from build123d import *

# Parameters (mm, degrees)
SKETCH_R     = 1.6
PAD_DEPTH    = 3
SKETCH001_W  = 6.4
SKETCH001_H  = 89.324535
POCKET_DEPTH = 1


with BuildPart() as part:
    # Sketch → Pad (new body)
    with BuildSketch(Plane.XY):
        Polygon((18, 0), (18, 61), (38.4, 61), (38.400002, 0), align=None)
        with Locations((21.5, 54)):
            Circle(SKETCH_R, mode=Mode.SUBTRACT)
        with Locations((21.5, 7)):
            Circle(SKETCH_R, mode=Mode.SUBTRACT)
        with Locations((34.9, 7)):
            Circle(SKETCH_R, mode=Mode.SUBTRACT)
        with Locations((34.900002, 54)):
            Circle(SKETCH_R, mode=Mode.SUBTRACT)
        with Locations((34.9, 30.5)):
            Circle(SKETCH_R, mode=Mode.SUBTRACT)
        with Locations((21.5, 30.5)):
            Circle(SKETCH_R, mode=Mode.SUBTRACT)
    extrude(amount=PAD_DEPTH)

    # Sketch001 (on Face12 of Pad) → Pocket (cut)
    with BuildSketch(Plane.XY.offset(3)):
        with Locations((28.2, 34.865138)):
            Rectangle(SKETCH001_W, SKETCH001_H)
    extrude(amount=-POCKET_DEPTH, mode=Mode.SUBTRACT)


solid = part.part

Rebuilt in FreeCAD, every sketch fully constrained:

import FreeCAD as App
import Part
import Sketcher
Q = App.Units.Quantity


def add_polygon(sketch, points):
    """Adds a closed chain of lines whose ends are joined by coincident constraints."""
    first, n = sketch.GeometryCount, len(points)
    for a, b in zip(points, points[1:] + points[:1]):
        sketch.addGeometry(Part.LineSegment(App.Vector(*a, 0), App.Vector(*b, 0)), False)
    for i in range(n):
        sketch.addConstraint(Sketcher.Constraint("Coincident", first + i, 2, first + (i + 1) % n, 1))

doc = App.newDocument("Part")
body = doc.addObject("PartDesign::Body", "Body")

sketch1 = doc.addObject("Sketcher::SketchObject", "Sketch")
body.addObject(sketch1)
sketch1.AttachmentSupport = (doc.XY_Plane, [""])
sketch1.MapMode = "FlatFace"
add_polygon(sketch1, [(18, 61), (18, 0), (38.4, 0), (38.4, 61)])
sketch1.addGeometry(Part.Circle(App.Vector(34.9, 7, 0), App.Vector(0, 0, 1), 1.6), False)
sketch1.addGeometry(Part.Circle(App.Vector(21.5, 7, 0), App.Vector(0, 0, 1), 1.6), False)
sketch1.addGeometry(Part.Circle(App.Vector(34.9, 30.5, 0), App.Vector(0, 0, 1), 1.6), False)
sketch1.addGeometry(Part.Circle(App.Vector(34.9, 54, 0), App.Vector(0, 0, 1), 1.6), False)
sketch1.addGeometry(Part.Circle(App.Vector(21.5, 30.5, 0), App.Vector(0, 0, 1), 1.6), False)
sketch1.addGeometry(Part.Circle(App.Vector(21.5, 54, 0), App.Vector(0, 0, 1), 1.6), False)
sketch1.addConstraint(Sketcher.Constraint("Vertical", 0))
sketch1.addConstraint(Sketcher.Constraint("Horizontal", 1))
sketch1.addConstraint(Sketcher.Constraint("Horizontal", 3))
sketch1.addConstraint(Sketcher.Constraint("Equal", 4, 5))
sketch1.addConstraint(Sketcher.Constraint("Equal", 5, 6))
sketch1.addConstraint(Sketcher.Constraint("Equal", 6, 7))
sketch1.addConstraint(Sketcher.Constraint("Equal", 7, 8))
sketch1.addConstraint(Sketcher.Constraint("Equal", 8, 9))
sketch1.addConstraint(Sketcher.Constraint("PointOnObject", 0, 2, -1))
sketch1.addConstraint(Sketcher.Constraint("Horizontal", 4, 3, 5, 3))
sketch1.addConstraint(Sketcher.Constraint("Horizontal", 6, 3, 8, 3))
sketch1.addConstraint(Sketcher.Constraint("Horizontal", 7, 3, 9, 3))
sketch1.addConstraint(Sketcher.Constraint("Vertical", 4, 3, 6, 3))
sketch1.addConstraint(Sketcher.Constraint("Vertical", 5, 3, 8, 3))
sketch1.addConstraint(Sketcher.Constraint("Vertical", 8, 3, 9, 3))
sketch1.addConstraint(Sketcher.Constraint("Diameter", 4, 3.2))
sketch1.addConstraint(Sketcher.Constraint("DistanceY", 0, 2, 0, 1, 61.0))
sketch1.addConstraint(Sketcher.Constraint("Angle", 2, Q("90.000002 deg")))
sketch1.addConstraint(Sketcher.Constraint("DistanceX", 3, 2, 3, 1, 20.4))
sketch1.addConstraint(Sketcher.Constraint("DistanceY", -1, 1, 4, 3, 7.0))
sketch1.addConstraint(Sketcher.Constraint("DistanceY", -1, 1, 7, 3, 54.0))
sketch1.addConstraint(Sketcher.Constraint("DistanceX", -1, 1, 0, 2, 18.0))
sketch1.addConstraint(Sketcher.Constraint("DistanceX", -1, 1, 4, 3, 34.9))
sketch1.addConstraint(Sketcher.Constraint("DistanceX", -1, 1, 5, 3, 21.5))
sketch1.addConstraint(Sketcher.Constraint("DistanceY", -1, 1, 6, 3, 30.5))
sketch1.addConstraint(Sketcher.Constraint("DistanceX", -1, 1, 7, 3, 34.900002))
pad1 = doc.addObject("PartDesign::Pad", "Pad")
body.addObject(pad1)
pad1.Profile = sketch1
pad1.Length = 3

sketch2 = doc.addObject("Sketcher::SketchObject", "Sketch001")
body.addObject(sketch2)
sketch2.AttachmentSupport = (doc.XY_Plane, [""])
sketch2.MapMode = "FlatFace"
sketch2.AttachmentOffset = App.Placement(App.Vector(0, 0, 3), App.Rotation())
add_polygon(sketch2, [(25, 80), (25, -10), (31, -10), (31, 80)])
sketch2.addConstraint(Sketcher.Constraint("Vertical", 0))
sketch2.addConstraint(Sketcher.Constraint("Horizontal", 1))
sketch2.addConstraint(Sketcher.Constraint("Vertical", 2))
sketch2.addConstraint(Sketcher.Constraint("Horizontal", 3))
sketch2.addConstraint(Sketcher.Constraint("DistanceX", 1, 1, 1, 2, 6.4))
sketch2.addConstraint(Sketcher.Constraint("DistanceX", -1, 1, 0, 2, 25.0))
sketch2.addConstraint(Sketcher.Constraint("DistanceY", 0, 2, 0, 1, 89.324535))
sketch2.addConstraint(Sketcher.Constraint("DistanceY", 0, 2, -1, 1, 9.79713))
pocket1 = doc.addObject("PartDesign::Pocket", "Pocket")
body.addObject(pocket1)
pocket1.Profile = sketch2
pocket1.Length = 1

doc.recompute()
